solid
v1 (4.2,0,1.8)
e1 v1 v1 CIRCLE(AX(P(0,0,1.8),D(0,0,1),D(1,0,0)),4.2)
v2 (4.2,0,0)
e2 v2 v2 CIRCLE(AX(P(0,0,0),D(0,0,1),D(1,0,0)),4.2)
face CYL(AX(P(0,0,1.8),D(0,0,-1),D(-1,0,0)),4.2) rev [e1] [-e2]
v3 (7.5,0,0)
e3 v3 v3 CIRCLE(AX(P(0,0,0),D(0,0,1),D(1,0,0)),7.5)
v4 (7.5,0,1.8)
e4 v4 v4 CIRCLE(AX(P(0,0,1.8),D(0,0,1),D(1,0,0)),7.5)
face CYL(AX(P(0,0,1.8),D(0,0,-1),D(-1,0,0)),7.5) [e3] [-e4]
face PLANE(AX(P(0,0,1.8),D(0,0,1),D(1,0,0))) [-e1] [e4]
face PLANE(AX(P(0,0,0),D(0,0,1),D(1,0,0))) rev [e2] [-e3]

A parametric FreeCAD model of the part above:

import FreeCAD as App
import Part
import Sketcher
Q = App.Units.Quantity

doc = App.newDocument("Part")
body = doc.addObject("PartDesign::Body", "Body")

# Sketch on XY plane
sketch1 = body.newObject("Sketcher::SketchObject", "Sketch")
sketch1.AttachmentSupport = (doc.getObject("XY_Plane"), [""])
sketch1.MapMode = "FlatFace"
sketch1.addGeometry([
    Part.Circle(App.Vector(0, 0, 0), App.Vector(0, 0, 1), 7.5),
    Part.Circle(App.Vector(0, 0, 0), App.Vector(0, 0, 1), 4.2),
], False)
sketch1.addConstraint([
    Sketcher.Constraint("Coincident", 0, 3, -1, 1),
    Sketcher.Constraint("Coincident", 1, 3, -1, 1),
    Sketcher.Constraint("Diameter", 0, Q("15 mm")),
    Sketcher.Constraint("Diameter", 1, Q("8.4 mm")),
])
pad1 = body.newObject("PartDesign::Pad", "Pad")
pad1.Profile = sketch1
pad1.Length = 1.8

doc.recompute()
